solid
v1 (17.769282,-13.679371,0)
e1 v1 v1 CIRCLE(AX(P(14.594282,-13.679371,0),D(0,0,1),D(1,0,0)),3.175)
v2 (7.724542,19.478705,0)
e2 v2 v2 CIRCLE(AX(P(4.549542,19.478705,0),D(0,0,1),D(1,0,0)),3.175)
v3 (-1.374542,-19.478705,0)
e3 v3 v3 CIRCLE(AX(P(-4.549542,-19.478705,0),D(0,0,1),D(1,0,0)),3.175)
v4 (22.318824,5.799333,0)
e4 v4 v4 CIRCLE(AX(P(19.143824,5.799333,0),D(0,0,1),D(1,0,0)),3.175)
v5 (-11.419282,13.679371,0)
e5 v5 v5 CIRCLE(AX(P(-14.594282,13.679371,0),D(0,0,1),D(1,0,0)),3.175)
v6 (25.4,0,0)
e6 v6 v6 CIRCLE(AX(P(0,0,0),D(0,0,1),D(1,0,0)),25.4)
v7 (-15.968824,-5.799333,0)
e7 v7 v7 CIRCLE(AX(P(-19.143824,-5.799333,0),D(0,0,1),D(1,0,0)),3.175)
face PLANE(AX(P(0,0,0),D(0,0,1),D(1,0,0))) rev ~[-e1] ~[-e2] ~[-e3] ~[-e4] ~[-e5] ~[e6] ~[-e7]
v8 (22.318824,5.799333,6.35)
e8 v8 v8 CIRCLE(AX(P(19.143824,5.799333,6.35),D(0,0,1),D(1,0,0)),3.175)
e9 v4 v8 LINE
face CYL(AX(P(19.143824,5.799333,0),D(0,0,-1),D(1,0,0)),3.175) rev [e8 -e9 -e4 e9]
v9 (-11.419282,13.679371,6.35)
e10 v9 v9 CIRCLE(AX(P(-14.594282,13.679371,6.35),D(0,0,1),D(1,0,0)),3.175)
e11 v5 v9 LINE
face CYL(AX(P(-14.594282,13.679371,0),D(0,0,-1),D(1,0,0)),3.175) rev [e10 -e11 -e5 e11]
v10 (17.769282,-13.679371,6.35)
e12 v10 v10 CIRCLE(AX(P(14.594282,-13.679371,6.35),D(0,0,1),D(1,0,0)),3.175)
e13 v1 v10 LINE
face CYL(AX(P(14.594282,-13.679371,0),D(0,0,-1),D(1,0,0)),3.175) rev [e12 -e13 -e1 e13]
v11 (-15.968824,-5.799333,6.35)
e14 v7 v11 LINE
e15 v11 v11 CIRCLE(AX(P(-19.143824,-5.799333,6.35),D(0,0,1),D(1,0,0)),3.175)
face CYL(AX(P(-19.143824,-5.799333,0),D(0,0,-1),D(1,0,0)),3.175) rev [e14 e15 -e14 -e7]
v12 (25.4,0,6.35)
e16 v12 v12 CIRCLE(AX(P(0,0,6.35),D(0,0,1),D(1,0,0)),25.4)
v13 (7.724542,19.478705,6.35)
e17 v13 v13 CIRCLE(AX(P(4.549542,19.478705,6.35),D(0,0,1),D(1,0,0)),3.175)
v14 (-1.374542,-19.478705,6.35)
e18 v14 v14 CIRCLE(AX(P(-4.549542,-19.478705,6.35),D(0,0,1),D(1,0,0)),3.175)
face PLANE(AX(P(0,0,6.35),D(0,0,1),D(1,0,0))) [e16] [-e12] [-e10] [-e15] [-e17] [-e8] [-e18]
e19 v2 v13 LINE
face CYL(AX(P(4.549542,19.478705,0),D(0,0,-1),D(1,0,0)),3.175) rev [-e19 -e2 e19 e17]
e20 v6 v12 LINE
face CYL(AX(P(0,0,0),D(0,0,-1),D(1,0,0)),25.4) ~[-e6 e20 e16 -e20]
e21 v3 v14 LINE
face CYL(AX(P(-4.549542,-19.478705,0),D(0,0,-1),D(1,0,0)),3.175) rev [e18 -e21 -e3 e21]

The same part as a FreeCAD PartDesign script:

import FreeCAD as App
import Part
import Sketcher
from FreeCAD import Vector
Q = App.Units.Quantity

doc = App.newDocument("Part")
params = doc.addObject("Spreadsheet::Sheet", "Params")
for row, (alias, value) in enumerate([
    ("sketch1_diameter", "2 in"),
    ("sketch1_diameter2", "0.25 in"),
    ("pad1_length", "0.25 in"),
], start=1):
    params.set(f"A{row}", alias)
    params.set(f"B{row}", "=" + value)
    params.setAlias(f"B{row}", alias)

body = doc.addObject("PartDesign::Body", "Body")

# Sketch on XY plane
sketch1 = body.newObject("Sketcher::SketchObject", "Sketch")
sketch1.AttachmentSupport = (doc.getObject("XY_Plane"), [""])
sketch1.MapMode = "FlatFace"
sketch1.addGeometry(Part.Circle(Vector(0, 0, 0), Vector(0, 0, 1), 25.4), False)
sketch1.addGeometry(Part.Circle(Vector(-4.5, -19.5, 0), Vector(0, 0, 1), 3.2), False)
sketch1.addGeometry(Part.Circle(Vector(-19.1, -5.8, 0), Vector(0, 0, 1), 3.2), False)
sketch1.addGeometry(Part.Circle(Vector(14.6, -13.7, 0), Vector(0, 0, 1), 3.2), False)
sketch1.addGeometry(Part.Circle(Vector(-14.6, 13.7, 0), Vector(0, 0, 1), 3.2), False)
sketch1.addGeometry(Part.Circle(Vector(19.1, 5.8, 0), Vector(0, 0, 1), 3.2), False)
sketch1.addGeometry(Part.Circle(Vector(4.5, 19.5, 0), Vector(0, 0, 1), 3.2), False)
sketch1.addConstraint(Sketcher.Constraint("Coincident", 0, 3, -1, 1))
sketch1.addConstraint(Sketcher.Constraint("Equal", 1, 2))
sketch1.addConstraint(Sketcher.Constraint("Equal", 2, 3))
sketch1.addConstraint(Sketcher.Constraint("Equal", 3, 4))
sketch1.addConstraint(Sketcher.Constraint("Equal", 4, 5))
sketch1.addConstraint(Sketcher.Constraint("Equal", 5, 6))
sketch1.addConstraint(Sketcher.Constraint("Symmetric", 3, 3, 4, 3, -1, 1))
sketch1.addConstraint(Sketcher.Constraint("Symmetric", 2, 3, 5, 3, -1, 1))
sketch1.addConstraint(Sketcher.Constraint("Symmetric", 1, 3, 6, 3, -1, 1))
sketch1.addConstraint(Sketcher.Constraint("Diameter", 0, Q("2 in")))
sketch1.addConstraint(Sketcher.Constraint("Diameter", 1, Q("0.25 in")))
sketch1.addConstraint(Sketcher.Constraint("DistanceX", 1, 3, -1, 1, 4.549542))
sketch1.addConstraint(Sketcher.Constraint("DistanceY", 3, 3, -1, 1, 13.679371))
sketch1.addConstraint(Sketcher.Constraint("DistanceX", 2, 3, 4, 3, 4.549542))
sketch1.addConstraint(Sketcher.Constraint("DistanceX", 4, 3, 1, 3, 10.04474))
sketch1.addConstraint(Sketcher.Constraint("DistanceY", 1, 3, 5, 3, 25.278038))
sketch1.addConstraint(Sketcher.Constraint("DistanceY", 1, 3, -1, 1, 19.478705))
sketch1.setExpression("Constraints[9]", "Params.sketch1_diameter")
sketch1.setExpression("Constraints[10]", "Params.sketch1_diameter2")
pad1 = body.newObject("PartDesign::Pad", "Pad")
pad1.Profile = sketch1
pad1.setExpression("Length", "Params.pad1_length")

doc.recompute()
